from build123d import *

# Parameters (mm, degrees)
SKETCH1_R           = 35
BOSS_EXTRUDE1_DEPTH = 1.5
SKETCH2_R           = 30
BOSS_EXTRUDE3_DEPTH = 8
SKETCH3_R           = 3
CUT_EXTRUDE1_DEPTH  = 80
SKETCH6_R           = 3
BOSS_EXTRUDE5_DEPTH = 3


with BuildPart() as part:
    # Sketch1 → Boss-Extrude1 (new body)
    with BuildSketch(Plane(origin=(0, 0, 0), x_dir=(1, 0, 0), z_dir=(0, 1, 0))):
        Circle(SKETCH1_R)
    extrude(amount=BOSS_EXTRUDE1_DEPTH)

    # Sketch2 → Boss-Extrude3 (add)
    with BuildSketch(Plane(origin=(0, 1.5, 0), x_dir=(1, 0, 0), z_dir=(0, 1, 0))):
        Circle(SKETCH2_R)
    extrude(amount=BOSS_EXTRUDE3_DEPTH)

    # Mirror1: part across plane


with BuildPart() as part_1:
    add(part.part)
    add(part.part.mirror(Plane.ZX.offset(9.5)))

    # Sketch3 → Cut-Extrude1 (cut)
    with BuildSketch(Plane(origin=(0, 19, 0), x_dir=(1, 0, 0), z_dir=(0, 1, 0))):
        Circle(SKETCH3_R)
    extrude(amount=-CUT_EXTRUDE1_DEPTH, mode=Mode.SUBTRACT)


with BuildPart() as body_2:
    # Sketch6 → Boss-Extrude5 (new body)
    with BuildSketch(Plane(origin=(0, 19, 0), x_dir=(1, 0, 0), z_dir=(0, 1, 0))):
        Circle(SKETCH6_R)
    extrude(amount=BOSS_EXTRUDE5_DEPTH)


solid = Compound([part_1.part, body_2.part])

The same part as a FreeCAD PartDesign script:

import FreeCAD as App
import Part
import Sketcher
Q = App.Units.Quantity

doc = App.newDocument("Part")
body = doc.addObject("PartDesign::Body", "Body")

# Sketch on XZ plane
sketch1 = doc.addObject("Sketcher::SketchObject", "Sketch")
body.addObject(sketch1)
sketch1.AttachmentSupport = (doc.XZ_Plane, [""])
sketch1.MapMode = "FlatFace"
sketch1.addGeometry(Part.Circle(App.Vector(0, 0, 0), App.Vector(0, 0, 1), 35), False)
sketch1.addConstraint(Sketcher.Constraint("Coincident", 0, 3, -1, 1))
sketch1.addConstraint(Sketcher.Constraint("Diameter", 0, Q("70 mm")))
pad1 = doc.addObject("PartDesign::Pad", "Pad")
body.addObject(pad1)
pad1.Profile = sketch1
pad1.Length = 1.5
pad1.Reversed = True

# Sketch on XZ plane
sketch2 = doc.addObject("Sketcher::SketchObject", "Sketch001")
body.addObject(sketch2)
sketch2.AttachmentSupport = (doc.XZ_Plane, [""])
sketch2.MapMode = "FlatFace"
sketch2.AttachmentOffset = App.Placement(App.Vector(0, 0, -1.5), App.Rotation())
sketch2.addGeometry(Part.Circle(App.Vector(0, 0, 0), App.Vector(0, 0, 1), 30), False)
sketch2.addConstraint(Sketcher.Constraint("Coincident", 0, 3, -1, 1))
sketch2.addConstraint(Sketcher.Constraint("Diameter", 0, Q("60 mm")))
pad2 = doc.addObject("PartDesign::Pad", "Pad001")
body.addObject(pad2)
pad2.Profile = sketch2
pad2.Length = 8
pad2.Reversed = True
body2 = doc.addObject("PartDesign::Body", "Body001")
doc.recompute()

body2.BaseFeature = body
doc.recompute()

mirroring = doc.addObject("Part::Mirroring", "Mirroring")
mirroring.Source = body
mirroring.Base = App.Vector(0, 9.5, 0)
mirroring.Normal = App.Vector(0, 1, 0)
body3 = doc.addObject("PartDesign::Body", "Body002")
body3.BaseFeature = mirroring
boolean = doc.addObject("PartDesign::Boolean", "Boolean")
body2.addObject(boolean)
boolean.Type = "Fuse"
boolean.addObjects([body3])
doc.recompute()

# Sketch on XZ plane
sketch3 = doc.addObject("Sketcher::SketchObject", "Sketch002")
body2.addObject(sketch3)
sketch3.AttachmentSupport = (doc.getObject("XZ_Plane001"), [""])
sketch3.MapMode = "FlatFace"
sketch3.AttachmentOffset = App.Placement(App.Vector(0, 0, -19), App.Rotation())
sketch3.addGeometry(Part.Circle(App.Vector(0, 0, 0), App.Vector(0, 0, 1), 3), False)
sketch3.addConstraint(Sketcher.Constraint("Coincident", 0, 3, -1, 1))
sketch3.addConstraint(Sketcher.Constraint("Diameter", 0, Q("6 mm")))
pocket1 = doc.addObject("PartDesign::Pocket", "Pocket")
body2.addObject(pocket1)
pocket1.Profile = sketch3
pocket1.Length = 80
pocket1.Reversed = True
body4 = doc.addObject("PartDesign::Body", "Body003")

# Sketch on XZ plane
sketch4 = doc.addObject("Sketcher::SketchObject", "Sketch003")
body4.addObject(sketch4)
sketch4.AttachmentSupport = (doc.getObject("XZ_Plane003"), [""])
sketch4.MapMode = "FlatFace"
sketch4.AttachmentOffset = App.Placement(App.Vector(0, 0, -19), App.Rotation())
sketch4.addGeometry(Part.Circle(App.Vector(0, 0, 0), App.Vector(0, 0, 1), 3), False)
sketch4.addConstraint(Sketcher.Constraint("Coincident", 0, 3, -1, 1))
sketch4.addConstraint(Sketcher.Constraint("Diameter", 0, Q("6 mm")))
pad3 = doc.addObject("PartDesign::Pad", "Pad002")
body4.addObject(pad3)
pad3.Profile = sketch4
pad3.Length = 3
pad3.Reversed = True
mirroring.Visibility = False

doc.recompute()
